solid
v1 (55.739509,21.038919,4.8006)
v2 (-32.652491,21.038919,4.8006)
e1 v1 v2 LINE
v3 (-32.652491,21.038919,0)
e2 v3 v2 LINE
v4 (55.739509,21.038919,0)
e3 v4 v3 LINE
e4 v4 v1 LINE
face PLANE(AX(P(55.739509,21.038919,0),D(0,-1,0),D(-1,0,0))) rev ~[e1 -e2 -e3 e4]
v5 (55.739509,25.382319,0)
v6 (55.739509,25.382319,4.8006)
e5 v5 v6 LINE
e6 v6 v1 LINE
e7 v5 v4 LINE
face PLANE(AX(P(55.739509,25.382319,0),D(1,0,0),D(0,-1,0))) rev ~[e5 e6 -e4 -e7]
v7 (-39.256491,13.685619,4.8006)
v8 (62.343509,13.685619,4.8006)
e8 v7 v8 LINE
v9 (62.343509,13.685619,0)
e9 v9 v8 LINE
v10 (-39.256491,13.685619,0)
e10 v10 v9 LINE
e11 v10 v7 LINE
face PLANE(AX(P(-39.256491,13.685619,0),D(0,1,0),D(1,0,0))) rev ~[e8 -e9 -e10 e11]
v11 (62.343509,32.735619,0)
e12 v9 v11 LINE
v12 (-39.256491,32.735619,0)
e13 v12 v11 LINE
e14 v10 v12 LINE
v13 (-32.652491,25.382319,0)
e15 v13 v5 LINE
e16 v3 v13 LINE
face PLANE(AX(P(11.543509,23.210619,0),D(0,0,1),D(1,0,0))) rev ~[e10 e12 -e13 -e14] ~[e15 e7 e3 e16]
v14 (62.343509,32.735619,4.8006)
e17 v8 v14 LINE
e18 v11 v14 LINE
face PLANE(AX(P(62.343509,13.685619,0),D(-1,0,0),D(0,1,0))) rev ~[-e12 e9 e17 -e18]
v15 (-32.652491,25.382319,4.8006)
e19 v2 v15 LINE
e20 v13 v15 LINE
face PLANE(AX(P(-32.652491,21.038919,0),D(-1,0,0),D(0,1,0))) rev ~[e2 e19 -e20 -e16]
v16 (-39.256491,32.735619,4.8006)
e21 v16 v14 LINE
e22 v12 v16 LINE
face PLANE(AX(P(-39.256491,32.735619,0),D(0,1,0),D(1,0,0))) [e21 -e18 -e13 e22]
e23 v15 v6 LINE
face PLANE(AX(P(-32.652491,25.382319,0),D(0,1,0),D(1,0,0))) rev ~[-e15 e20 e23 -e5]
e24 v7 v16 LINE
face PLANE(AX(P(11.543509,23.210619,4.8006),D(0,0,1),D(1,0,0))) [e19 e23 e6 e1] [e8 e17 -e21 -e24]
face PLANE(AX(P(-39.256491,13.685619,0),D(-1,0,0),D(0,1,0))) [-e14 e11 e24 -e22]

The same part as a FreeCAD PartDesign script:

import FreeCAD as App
import Part
import Sketcher
Q = App.Units.Quantity

doc = App.newDocument("Part")
body = doc.addObject("PartDesign::Body", "Body")

sketch1 = doc.addObject("Sketcher::SketchObject", "Sketch")
body.addObject(sketch1)
sketch1.AttachmentSupport = (doc.XY_Plane, [""])
sketch1.MapMode = "FlatFace"
sketch1.addGeometry([
    Part.LineSegment(App.Vector(-39.256491, 32.735619, 0), App.Vector(-39.256491, 13.685619, 0)),
    Part.LineSegment(App.Vector(-39.256491, 13.685619, 0), App.Vector(62.343509, 13.685619, 0)),
    Part.LineSegment(App.Vector(62.343509, 13.685619, 0), App.Vector(62.343509, 32.735619, 0)),
    Part.LineSegment(App.Vector(62.343509, 32.735619, 0), App.Vector(-39.256491, 32.735619, 0)),
    Part.LineSegment(App.Vector(-32.652491, 25.382319, 0), App.Vector(55.739509, 25.382319, 0)),
    Part.LineSegment(App.Vector(55.739509, 25.382319, 0), App.Vector(55.739509, 21.038919, 0)),
    Part.LineSegment(App.Vector(55.739509, 21.038919, 0), App.Vector(-32.652491, 21.038919, 0)),
    Part.LineSegment(App.Vector(-32.652491, 21.038919, 0), App.Vector(-32.652491, 25.382319, 0)),
], False)
sketch1.addConstraint([
    Sketcher.Constraint("Coincident", 0, 2, 1, 1),
    Sketcher.Constraint("Coincident", 1, 2, 2, 1),
    Sketcher.Constraint("Coincident", 2, 2, 3, 1),
    Sketcher.Constraint("Coincident", 3, 2, 0, 1),
    Sketcher.Constraint("Coincident", 4, 2, 5, 1),
    Sketcher.Constraint("Coincident", 5, 2, 6, 1),
    Sketcher.Constraint("Coincident", 6, 2, 7, 1),
    Sketcher.Constraint("Coincident", 7, 2, 4, 1),
    Sketcher.Constraint("Vertical", 0),
    Sketcher.Constraint("Horizontal", 1),
    Sketcher.Constraint("Vertical", 2),
    Sketcher.Constraint("Horizontal", 3),
    Sketcher.Constraint("Horizontal", 4),
    Sketcher.Constraint("Vertical", 5),
    Sketcher.Constraint("Horizontal", 6),
    Sketcher.Constraint("Vertical", 7),
    Sketcher.Constraint("DistanceX", 1, 1, 1, 2, Q("4 in")),
    Sketcher.Constraint("DistanceX", 4, 1, 4, 2, Q("3.48 in")),
    Sketcher.Constraint("DistanceY", 0, 2, 0, 1, Q("0.75 in")),
    Sketcher.Constraint("DistanceY", 5, 2, 5, 1, Q("0.171 in")),
    Sketcher.Constraint("DistanceX", 4, 2, 2, 2, Q("0.26 in")),
    Sketcher.Constraint("DistanceY", 4, 2, 2, 2, Q("0.2895 in")),
    Sketcher.Constraint("DistanceX", 0, 2, -1, 1, 39.256491),
    Sketcher.Constraint("DistanceY", -1, 1, 0, 2, 13.685619),
])
pad1 = doc.addObject("PartDesign::Pad", "Pad")
body.addObject(pad1)
pad1.Profile = sketch1
pad1.Length = Q("0.189 in")

doc.recompute()
